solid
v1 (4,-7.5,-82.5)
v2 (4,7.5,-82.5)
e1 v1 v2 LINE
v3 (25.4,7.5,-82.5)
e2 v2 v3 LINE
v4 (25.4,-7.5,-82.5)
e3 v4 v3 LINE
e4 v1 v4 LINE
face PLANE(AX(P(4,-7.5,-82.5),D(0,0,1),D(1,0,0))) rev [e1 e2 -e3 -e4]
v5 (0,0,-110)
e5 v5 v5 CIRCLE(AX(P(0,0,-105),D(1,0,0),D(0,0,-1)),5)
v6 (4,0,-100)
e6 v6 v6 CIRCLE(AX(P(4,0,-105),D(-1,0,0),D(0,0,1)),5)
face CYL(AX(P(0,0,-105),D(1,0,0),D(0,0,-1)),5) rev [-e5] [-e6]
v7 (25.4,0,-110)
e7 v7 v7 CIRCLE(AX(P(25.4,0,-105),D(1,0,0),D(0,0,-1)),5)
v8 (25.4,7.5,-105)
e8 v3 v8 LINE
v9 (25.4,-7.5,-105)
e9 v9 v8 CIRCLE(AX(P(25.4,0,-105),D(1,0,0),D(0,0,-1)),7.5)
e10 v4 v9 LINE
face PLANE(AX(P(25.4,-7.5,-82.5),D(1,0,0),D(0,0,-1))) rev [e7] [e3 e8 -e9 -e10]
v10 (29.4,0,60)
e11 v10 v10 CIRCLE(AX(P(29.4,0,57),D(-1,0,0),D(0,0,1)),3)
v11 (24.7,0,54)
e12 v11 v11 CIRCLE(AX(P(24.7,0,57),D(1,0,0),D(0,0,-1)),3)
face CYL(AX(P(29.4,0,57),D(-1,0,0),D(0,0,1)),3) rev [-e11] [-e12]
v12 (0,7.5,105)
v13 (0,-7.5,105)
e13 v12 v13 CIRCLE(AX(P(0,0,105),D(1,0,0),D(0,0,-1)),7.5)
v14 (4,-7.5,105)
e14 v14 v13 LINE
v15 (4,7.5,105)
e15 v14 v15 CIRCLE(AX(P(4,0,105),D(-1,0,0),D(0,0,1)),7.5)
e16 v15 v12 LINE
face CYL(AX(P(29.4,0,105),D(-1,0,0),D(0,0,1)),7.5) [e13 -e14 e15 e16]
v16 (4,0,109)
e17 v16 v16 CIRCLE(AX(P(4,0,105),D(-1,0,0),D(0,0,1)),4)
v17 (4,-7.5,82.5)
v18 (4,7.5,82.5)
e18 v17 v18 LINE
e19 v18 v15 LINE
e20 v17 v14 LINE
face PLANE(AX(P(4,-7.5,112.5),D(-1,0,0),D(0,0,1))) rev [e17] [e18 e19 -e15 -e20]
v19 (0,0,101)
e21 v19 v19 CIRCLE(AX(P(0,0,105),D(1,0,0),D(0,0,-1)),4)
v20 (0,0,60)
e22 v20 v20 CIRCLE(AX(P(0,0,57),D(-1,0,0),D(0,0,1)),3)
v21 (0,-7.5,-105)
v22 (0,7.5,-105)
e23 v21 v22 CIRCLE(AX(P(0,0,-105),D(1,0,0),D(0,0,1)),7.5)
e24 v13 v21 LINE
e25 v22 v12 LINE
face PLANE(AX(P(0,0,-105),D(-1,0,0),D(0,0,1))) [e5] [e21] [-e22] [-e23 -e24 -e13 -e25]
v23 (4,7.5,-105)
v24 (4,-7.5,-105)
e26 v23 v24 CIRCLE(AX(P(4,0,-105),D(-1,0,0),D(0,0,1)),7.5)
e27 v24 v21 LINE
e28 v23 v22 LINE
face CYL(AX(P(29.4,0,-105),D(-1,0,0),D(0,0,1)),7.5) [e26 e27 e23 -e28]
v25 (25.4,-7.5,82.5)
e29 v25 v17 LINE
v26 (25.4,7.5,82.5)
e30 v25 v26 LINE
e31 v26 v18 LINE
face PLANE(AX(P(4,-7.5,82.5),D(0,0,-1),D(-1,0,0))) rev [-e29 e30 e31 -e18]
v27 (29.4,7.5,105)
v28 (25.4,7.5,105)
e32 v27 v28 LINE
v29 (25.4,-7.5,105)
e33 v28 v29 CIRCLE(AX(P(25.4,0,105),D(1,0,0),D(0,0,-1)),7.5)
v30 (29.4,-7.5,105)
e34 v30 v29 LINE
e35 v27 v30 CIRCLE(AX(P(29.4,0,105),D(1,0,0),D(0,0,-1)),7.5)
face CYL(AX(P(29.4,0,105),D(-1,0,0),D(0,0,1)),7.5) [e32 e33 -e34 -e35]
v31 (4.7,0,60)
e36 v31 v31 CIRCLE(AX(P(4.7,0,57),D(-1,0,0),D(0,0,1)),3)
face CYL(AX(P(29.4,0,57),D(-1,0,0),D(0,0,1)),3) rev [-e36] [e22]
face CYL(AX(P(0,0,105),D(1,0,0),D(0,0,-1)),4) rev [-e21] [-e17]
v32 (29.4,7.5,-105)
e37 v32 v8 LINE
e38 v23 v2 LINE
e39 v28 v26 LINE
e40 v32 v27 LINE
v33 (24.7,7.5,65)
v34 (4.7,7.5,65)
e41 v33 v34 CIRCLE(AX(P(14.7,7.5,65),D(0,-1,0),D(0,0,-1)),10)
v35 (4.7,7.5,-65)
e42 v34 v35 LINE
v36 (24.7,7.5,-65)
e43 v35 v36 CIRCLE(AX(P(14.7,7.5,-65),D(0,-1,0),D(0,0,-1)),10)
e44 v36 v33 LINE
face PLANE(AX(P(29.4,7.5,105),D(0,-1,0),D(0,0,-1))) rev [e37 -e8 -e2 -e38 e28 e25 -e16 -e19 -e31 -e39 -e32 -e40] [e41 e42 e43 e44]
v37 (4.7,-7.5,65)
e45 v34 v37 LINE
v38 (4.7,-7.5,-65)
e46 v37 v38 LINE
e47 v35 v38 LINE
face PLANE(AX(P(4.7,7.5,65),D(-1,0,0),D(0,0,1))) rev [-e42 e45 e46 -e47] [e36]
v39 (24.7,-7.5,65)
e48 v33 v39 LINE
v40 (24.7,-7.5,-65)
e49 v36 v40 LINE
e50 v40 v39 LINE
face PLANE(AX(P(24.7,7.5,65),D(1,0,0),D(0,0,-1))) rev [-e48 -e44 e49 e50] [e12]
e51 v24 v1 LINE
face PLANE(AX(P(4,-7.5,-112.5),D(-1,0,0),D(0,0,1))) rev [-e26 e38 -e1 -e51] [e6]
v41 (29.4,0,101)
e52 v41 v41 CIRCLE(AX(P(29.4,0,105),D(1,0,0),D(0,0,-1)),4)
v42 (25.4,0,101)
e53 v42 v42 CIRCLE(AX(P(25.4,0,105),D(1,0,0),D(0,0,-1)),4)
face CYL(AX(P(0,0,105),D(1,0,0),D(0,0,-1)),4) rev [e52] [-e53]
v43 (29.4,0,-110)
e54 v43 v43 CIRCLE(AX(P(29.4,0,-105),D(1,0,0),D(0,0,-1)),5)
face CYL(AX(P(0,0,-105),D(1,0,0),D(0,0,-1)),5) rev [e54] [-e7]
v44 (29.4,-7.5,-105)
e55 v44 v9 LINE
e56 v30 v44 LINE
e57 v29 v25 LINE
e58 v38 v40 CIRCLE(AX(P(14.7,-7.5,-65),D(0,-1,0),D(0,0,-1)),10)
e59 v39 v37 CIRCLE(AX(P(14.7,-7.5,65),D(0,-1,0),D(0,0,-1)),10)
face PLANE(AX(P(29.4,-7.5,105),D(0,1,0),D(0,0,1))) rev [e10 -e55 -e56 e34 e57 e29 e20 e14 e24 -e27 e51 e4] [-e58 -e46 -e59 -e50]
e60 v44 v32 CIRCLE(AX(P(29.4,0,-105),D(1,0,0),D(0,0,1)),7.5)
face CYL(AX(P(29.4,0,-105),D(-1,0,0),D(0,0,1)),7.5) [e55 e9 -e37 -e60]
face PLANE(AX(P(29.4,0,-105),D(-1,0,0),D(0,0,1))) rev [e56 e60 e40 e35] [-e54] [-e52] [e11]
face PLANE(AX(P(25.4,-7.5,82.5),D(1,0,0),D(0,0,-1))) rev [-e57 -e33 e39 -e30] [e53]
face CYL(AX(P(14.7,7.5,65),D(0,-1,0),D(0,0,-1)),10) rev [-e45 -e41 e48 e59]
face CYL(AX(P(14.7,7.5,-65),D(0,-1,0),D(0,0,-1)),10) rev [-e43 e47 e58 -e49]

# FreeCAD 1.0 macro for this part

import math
import FreeCAD as App
import Part
import Sketcher

doc = App.newDocument("Part")
body = doc.addObject("PartDesign::Body", "Body")

sketch1 = doc.addObject("Sketcher::SketchObject", "Sketch")
body.addObject(sketch1)
sketch1.AttachmentSupport = (doc.YZ_Plane, [""])
sketch1.MapMode = "FlatFace"
sketch1.addGeometry([
    Part.LineSegment(App.Vector(-7.5, 105, 0), App.Vector(-7.5, -105, 0)),
    Part.ArcOfCircle(Part.Circle(App.Vector(0, -105, 0), App.Vector(0, 0, 1), 7.5), math.radians(180), math.radians(360)),
    Part.LineSegment(App.Vector(7.5, -105, 0), App.Vector(7.5, 105, 0)),
    Part.ArcOfCircle(Part.Circle(App.Vector(0, 105, 0), App.Vector(0, 0, 1), 7.5), math.radians(0), math.radians(180)),
], False)
sketch1.addConstraint([
    Sketcher.Constraint("Tangent", 0, 2, 1, 1),
    Sketcher.Constraint("Tangent", 1, 2, 2, 1),
    Sketcher.Constraint("Tangent", 2, 2, 3, 1),
    Sketcher.Constraint("Tangent", 3, 2, 0, 1),
    Sketcher.Constraint("Vertical", 0),
    Sketcher.Constraint("Vertical", 2),
    Sketcher.Constraint("Symmetric", 1, 3, 3, 3, -1, 1),
    Sketcher.Constraint("Radius", 1, 7.5),
    Sketcher.Constraint("DistanceY", 0, 2, 0, 1, 210.0),
])
pad1 = doc.addObject("PartDesign::Pad", "Pad")
body.addObject(pad1)
pad1.Profile = sketch1
pad1.Length = 29.4

sketch2 = doc.addObject("Sketcher::SketchObject", "Sketch001")
body.addObject(sketch2)
sketch2.AttachmentSupport = (doc.XZ_Plane, [""])
sketch2.MapMode = "FlatFace"
sketch2.AttachmentOffset = App.Placement(App.Vector(0, 0, -7.5), App.Rotation())
sketch2.addGeometry([
    Part.LineSegment(App.Vector(4, 82.5, 0), App.Vector(4, 112.5, 0)),
    Part.LineSegment(App.Vector(4, 112.5, 0), App.Vector(25.4, 112.5, 0)),
    Part.LineSegment(App.Vector(25.4, 112.5, 0), App.Vector(25.4, 82.5, 0)),
    Part.LineSegment(App.Vector(25.4, 82.5, 0), App.Vector(4, 82.5, 0)),
    Part.LineSegment(App.Vector(4, -112.5, 0), App.Vector(4, -82.5, 0)),
    Part.LineSegment(App.Vector(4, -82.5, 0), App.Vector(25.4, -82.5, 0)),
    Part.LineSegment(App.Vector(25.4, -82.5, 0), App.Vector(25.4, -112.5, 0)),
    Part.LineSegment(App.Vector(25.4, -112.5, 0), App.Vector(4, -112.5, 0)),
], False)
sketch2.addConstraint([
    Sketcher.Constraint("Coincident", 0, 2, 1, 1),
    Sketcher.Constraint("Coincident", 1, 2, 2, 1),
    Sketcher.Constraint("Coincident", 2, 2, 3, 1),
    Sketcher.Constraint("Coincident", 3, 2, 0, 1),
    Sketcher.Constraint("Coincident", 4, 2, 5, 1),
    Sketcher.Constraint("Coincident", 5, 2, 6, 1),
    Sketcher.Constraint("Coincident", 6, 2, 7, 1),
    Sketcher.Constraint("Coincident", 7, 2, 4, 1),
    Sketcher.Constraint("Vertical", 0),
    Sketcher.Constraint("Horizontal", 1),
    Sketcher.Constraint("Vertical", 2),
    Sketcher.Constraint("Horizontal", 3),
    Sketcher.Constraint("Vertical", 4),
    Sketcher.Constraint("Horizontal", 5),
    Sketcher.Constraint("Vertical", 6),
    Sketcher.Constraint("Horizontal", 7),
    Sketcher.Constraint("Symmetric", 3, 2, 4, 2, -1),
    Sketcher.Constraint("Symmetric", 1, 2, 6, 2, -1),
    Sketcher.Constraint("DistanceY", 0, 1, 0, 2, 30.0),
    Sketcher.Constraint("DistanceX", 1, 1, 1, 2, 21.4),
    Sketcher.Constraint("DistanceX", -1, 1, 0, 2, 4.0),
    Sketcher.Constraint("DistanceY", 4, 2, 3, 2, 165.0),
])
pocket1 = doc.addObject("PartDesign::Pocket", "Pocket")
body.addObject(pocket1)
pocket1.Profile = sketch2
pocket1.Type = "ThroughAll"
pocket1.Reversed = True

sketch3 = doc.addObject("Sketcher::SketchObject", "Sketch002")
body.addObject(sketch3)
sketch3.AttachmentSupport = (doc.YZ_Plane, [""])
sketch3.MapMode = "FlatFace"
sketch3.AttachmentOffset = App.Placement(App.Vector(0, 0, 29.4), App.Rotation())
sketch3.addGeometry([
    Part.Circle(App.Vector(0, 105, 0), App.Vector(0, 0, 1), 4),
    Part.Circle(App.Vector(0, -105, 0), App.Vector(0, 0, 1), 5),
], False)
sketch3.addConstraint([
    Sketcher.Constraint("Symmetric", 0, 3, 1, 3, -1, 1),
    Sketcher.Constraint("PointOnObject", 0, 3, -2),
    Sketcher.Constraint("Diameter", 0, 8.0),
    Sketcher.Constraint("Diameter", 1, 10.0),
    Sketcher.Constraint("DistanceY", -1, 1, 0, 3, 105.0),
])
pocket2 = doc.addObject("PartDesign::Pocket", "Pocket001")
body.addObject(pocket2)
pocket2.Profile = sketch3
pocket2.Type = "ThroughAll"

sketch4 = doc.addObject("Sketcher::SketchObject", "Sketch003")
body.addObject(sketch4)
sketch4.AttachmentSupport = (doc.XZ_Plane, [""])
sketch4.MapMode = "FlatFace"
sketch4.AttachmentOffset = App.Placement(App.Vector(0, 0, 7.5), App.Rotation())
sketch4.addGeometry([
    Part.LineSegment(App.Vector(24.7, -65, 0), App.Vector(24.7, 65, 0)),
    Part.ArcOfCircle(Part.Circle(App.Vector(14.7, 65, 0), App.Vector(0, 0, 1), 10), math.radians(0), math.radians(180)),
    Part.LineSegment(App.Vector(4.7, 65, 0), App.Vector(4.7, -65, 0)),
    Part.ArcOfCircle(Part.Circle(App.Vector(14.7, -65, 0), App.Vector(0, 0, 1), 10), math.radians(180), math.radians(360)),
], False)
sketch4.addConstraint([
    Sketcher.Constraint("Tangent", 0, 2, 1, 1),
    Sketcher.Constraint("Tangent", 1, 2, 2, 1),
    Sketcher.Constraint("Tangent", 2, 2, 3, 1),
    Sketcher.Constraint("Tangent", 3, 2, 0, 1),
    Sketcher.Constraint("Vertical", 0),
    Sketcher.Constraint("Vertical", 2),
    Sketcher.Constraint("Radius", 1, 10.0),
    Sketcher.Constraint("DistanceY", 0, 1, 0, 2, 130.0),
    Sketcher.Constraint("DistanceY", -1, 1, 1, 3, 65.0),
    Sketcher.Constraint("DistanceX", -1, 1, 1, 3, 14.7),
])
pocket3 = doc.addObject("PartDesign::Pocket", "Pocket002")
body.addObject(pocket3)
pocket3.Profile = sketch4
pocket3.Type = "ThroughAll"

sketch5 = doc.addObject("Sketcher::SketchObject", "Sketch004")
body.addObject(sketch5)
sketch5.AttachmentSupport = (doc.YZ_Plane, [""])
sketch5.MapMode = "FlatFace"
sketch5.addGeometry(Part.Circle(App.Vector(0, 57, 0), App.Vector(0, 0, 1), 3), False)
sketch5.addConstraint([
    Sketcher.Constraint("PointOnObject", 0, 3, -2),
    Sketcher.Constraint("Diameter", 0, 6.0),
    Sketcher.Constraint("DistanceY", -1, 1, 0, 3, 57.0),
])
pocket4 = doc.addObject("PartDesign::Pocket", "Pocket003")
body.addObject(pocket4)
pocket4.Profile = sketch5
pocket4.Type = "ThroughAll"
pocket4.Reversed = True

doc.recompute()
